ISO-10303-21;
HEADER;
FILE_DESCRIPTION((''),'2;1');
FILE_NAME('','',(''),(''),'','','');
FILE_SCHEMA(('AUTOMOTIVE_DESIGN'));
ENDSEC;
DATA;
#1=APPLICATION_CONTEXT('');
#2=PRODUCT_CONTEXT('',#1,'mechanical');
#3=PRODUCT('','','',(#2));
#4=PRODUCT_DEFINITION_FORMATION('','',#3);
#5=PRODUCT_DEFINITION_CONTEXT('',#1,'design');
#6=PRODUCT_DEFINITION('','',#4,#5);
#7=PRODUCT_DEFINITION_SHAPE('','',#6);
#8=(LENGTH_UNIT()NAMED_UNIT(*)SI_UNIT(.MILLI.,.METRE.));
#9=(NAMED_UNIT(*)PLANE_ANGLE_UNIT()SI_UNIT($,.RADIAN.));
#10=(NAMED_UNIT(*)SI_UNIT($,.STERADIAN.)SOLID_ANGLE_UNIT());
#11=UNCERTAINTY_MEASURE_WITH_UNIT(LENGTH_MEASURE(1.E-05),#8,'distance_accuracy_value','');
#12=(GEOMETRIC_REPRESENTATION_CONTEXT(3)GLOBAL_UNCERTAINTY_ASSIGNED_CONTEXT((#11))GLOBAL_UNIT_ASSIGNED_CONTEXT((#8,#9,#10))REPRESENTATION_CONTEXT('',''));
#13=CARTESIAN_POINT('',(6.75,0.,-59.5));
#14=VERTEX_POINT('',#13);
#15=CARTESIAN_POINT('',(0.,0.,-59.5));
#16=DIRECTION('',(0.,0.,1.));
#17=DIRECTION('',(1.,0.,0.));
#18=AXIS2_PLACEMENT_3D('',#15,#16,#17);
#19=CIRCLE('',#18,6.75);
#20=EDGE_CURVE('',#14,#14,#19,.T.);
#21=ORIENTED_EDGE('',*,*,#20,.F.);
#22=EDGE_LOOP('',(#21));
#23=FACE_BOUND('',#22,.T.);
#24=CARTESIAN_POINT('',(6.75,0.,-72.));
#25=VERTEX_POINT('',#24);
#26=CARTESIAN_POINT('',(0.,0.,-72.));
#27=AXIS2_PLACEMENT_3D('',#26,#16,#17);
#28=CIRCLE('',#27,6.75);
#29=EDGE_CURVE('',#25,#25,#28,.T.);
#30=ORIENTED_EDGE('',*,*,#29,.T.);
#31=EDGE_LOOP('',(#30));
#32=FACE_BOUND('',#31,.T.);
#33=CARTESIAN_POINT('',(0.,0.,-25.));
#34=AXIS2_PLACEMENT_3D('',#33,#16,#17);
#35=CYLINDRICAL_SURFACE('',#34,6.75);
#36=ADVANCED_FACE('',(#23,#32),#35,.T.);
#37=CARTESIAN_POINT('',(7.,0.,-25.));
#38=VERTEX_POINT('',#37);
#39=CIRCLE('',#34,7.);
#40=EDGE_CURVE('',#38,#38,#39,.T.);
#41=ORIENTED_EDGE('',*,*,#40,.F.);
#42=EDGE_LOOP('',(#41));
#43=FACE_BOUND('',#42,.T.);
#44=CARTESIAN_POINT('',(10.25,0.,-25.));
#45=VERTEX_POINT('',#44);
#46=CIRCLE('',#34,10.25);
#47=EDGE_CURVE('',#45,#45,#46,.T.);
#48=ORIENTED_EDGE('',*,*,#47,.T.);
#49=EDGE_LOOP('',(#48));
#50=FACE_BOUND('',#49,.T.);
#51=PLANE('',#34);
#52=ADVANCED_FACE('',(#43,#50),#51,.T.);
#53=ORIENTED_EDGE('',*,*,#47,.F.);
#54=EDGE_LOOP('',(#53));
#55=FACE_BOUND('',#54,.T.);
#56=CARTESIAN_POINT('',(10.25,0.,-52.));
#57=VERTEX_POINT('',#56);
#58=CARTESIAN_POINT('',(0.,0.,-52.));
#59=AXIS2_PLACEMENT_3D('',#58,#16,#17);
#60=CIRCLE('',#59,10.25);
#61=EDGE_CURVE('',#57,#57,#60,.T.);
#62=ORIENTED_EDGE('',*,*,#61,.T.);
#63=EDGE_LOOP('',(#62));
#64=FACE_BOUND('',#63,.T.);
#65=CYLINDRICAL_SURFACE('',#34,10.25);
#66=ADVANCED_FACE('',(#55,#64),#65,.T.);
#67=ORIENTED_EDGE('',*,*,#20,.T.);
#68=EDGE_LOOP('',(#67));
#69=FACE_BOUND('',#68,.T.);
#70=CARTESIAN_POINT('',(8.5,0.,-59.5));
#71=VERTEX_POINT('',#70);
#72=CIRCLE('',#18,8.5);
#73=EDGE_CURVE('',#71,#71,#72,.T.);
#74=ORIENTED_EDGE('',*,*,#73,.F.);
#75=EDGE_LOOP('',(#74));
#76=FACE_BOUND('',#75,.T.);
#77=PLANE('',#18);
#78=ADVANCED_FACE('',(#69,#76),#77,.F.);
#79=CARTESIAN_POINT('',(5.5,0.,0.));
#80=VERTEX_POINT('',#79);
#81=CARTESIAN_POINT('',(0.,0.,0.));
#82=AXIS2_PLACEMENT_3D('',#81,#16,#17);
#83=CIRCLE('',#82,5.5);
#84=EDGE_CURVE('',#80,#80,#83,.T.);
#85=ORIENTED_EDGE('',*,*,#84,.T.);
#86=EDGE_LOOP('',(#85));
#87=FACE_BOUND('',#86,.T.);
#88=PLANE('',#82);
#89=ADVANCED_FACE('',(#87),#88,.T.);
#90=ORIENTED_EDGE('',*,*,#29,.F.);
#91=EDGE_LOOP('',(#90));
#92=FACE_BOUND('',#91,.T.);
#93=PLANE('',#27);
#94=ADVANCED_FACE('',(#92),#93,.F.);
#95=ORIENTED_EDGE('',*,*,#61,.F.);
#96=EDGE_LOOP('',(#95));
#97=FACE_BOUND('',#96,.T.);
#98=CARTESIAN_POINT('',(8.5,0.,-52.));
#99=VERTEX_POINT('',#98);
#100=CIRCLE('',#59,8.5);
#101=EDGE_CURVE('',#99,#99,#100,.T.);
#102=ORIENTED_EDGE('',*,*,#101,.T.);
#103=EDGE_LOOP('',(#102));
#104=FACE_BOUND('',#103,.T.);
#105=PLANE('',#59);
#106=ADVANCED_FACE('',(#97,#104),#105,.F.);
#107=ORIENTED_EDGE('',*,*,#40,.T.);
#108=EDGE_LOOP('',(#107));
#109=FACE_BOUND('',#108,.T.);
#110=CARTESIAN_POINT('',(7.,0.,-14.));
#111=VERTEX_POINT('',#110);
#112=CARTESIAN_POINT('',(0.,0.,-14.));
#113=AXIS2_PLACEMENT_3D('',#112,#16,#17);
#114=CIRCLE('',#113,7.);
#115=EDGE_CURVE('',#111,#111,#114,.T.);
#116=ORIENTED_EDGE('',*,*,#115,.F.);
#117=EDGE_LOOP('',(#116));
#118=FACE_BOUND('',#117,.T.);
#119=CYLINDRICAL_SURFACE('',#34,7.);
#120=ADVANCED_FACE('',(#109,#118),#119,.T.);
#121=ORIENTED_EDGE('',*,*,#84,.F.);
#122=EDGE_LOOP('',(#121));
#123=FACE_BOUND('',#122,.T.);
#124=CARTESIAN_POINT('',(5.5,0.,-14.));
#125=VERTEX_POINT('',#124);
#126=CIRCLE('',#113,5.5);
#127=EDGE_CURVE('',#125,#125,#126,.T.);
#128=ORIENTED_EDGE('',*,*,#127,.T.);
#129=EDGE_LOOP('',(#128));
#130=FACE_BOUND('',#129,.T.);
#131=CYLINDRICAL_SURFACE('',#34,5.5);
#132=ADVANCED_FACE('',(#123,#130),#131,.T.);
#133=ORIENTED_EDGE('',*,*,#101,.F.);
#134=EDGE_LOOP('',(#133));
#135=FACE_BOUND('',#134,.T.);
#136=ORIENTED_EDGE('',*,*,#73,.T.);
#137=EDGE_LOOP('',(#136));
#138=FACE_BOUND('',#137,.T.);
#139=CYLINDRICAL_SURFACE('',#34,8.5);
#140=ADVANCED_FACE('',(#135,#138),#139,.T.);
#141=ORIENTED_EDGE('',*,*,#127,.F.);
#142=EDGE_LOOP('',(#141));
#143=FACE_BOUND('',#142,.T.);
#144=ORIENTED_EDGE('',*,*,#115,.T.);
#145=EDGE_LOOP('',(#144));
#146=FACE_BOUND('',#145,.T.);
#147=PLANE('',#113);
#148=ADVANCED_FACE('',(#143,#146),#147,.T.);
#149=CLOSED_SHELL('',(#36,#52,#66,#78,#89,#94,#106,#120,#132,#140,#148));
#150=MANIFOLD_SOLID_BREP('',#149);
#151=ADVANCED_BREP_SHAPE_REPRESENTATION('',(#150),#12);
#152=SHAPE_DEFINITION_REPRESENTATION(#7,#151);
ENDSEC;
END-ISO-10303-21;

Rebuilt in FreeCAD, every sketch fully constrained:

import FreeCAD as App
import Part
import Sketcher
from FreeCAD import Vector
Q = App.Units.Quantity

doc = App.newDocument("Part")
body = doc.addObject("PartDesign::Body", "Body")

# Sketch on YZ plane
sketch1 = body.newObject("Sketcher::SketchObject", "Sketch")
sketch1.AttachmentSupport = (doc.getObject("YZ_Plane"), [""])
sketch1.MapMode = "FlatFace"
sketch1.addGeometry(Part.LineSegment(Vector(5.5, 0, 0), Vector(0, 0, 0)), False)
sketch1.addGeometry(Part.LineSegment(Vector(0, 0, 0), Vector(0, -72, 0)), False)
sketch1.addGeometry(Part.LineSegment(Vector(0, -72, 0), Vector(6.8, -72, 0)), False)
sketch1.addGeometry(Part.LineSegment(Vector(6.8, -72, 0), Vector(6.8, -59.5, 0)), False)
sketch1.addGeometry(Part.LineSegment(Vector(6.8, -59.5, 0), Vector(8.5, -59.5, 0)), False)
sketch1.addGeometry(Part.LineSegment(Vector(8.5, -59.5, 0), Vector(8.5, -52, 0)), False)
sketch1.addGeometry(Part.LineSegment(Vector(8.5, -52, 0), Vector(10.2, -52, 0)), False)
sketch1.addGeometry(Part.LineSegment(Vector(10.2, -52, 0), Vector(10.2, -25, 0)), False)
sketch1.addGeometry(Part.LineSegment(Vector(10.2, -25, 0), Vector(7, -25, 0)), False)
sketch1.addGeometry(Part.LineSegment(Vector(7, -25, 0), Vector(7, -14, 0)), False)
sketch1.addGeometry(Part.LineSegment(Vector(7, -14, 0), Vector(5.5, -14, 0)), False)
sketch1.addGeometry(Part.LineSegment(Vector(5.5, -14, 0), Vector(5.5, 0, 0)), False)
sketch1.addConstraint(Sketcher.Constraint("Coincident", 0, 2, 1, 1))
sketch1.addConstraint(Sketcher.Constraint("Coincident", 1, 2, 2, 1))
sketch1.addConstraint(Sketcher.Constraint("Coincident", 2, 2, 3, 1))
sketch1.addConstraint(Sketcher.Constraint("Coincident", 3, 2, 4, 1))
sketch1.addConstraint(Sketcher.Constraint("Coincident", 4, 2, 5, 1))
sketch1.addConstraint(Sketcher.Constraint("Coincident", 5, 2, 6, 1))
sketch1.addConstraint(Sketcher.Constraint("Coincident", 6, 2, 7, 1))
sketch1.addConstraint(Sketcher.Constraint("Coincident", 7, 2, 8, 1))
sketch1.addConstraint(Sketcher.Constraint("Coincident", 8, 2, 9, 1))
sketch1.addConstraint(Sketcher.Constraint("Coincident", 9, 2, 10, 1))
sketch1.addConstraint(Sketcher.Constraint("Coincident", 10, 2, 11, 1))
sketch1.addConstraint(Sketcher.Constraint("Coincident", 11, 2, 0, 1))
sketch1.addConstraint(Sketcher.Constraint("Horizontal", 0))
sketch1.addConstraint(Sketcher.Constraint("Vertical", 1))
sketch1.addConstraint(Sketcher.Constraint("Horizontal", 2))
sketch1.addConstraint(Sketcher.Constraint("Vertical", 3))
sketch1.addConstraint(Sketcher.Constraint("Horizontal", 4))
sketch1.addConstraint(Sketcher.Constraint("Vertical", 5))
sketch1.addConstraint(Sketcher.Constraint("Horizontal", 6))
sketch1.addConstraint(Sketcher.Constraint("Vertical", 7))
sketch1.addConstraint(Sketcher.Constraint("Horizontal", 8))
sketch1.addConstraint(Sketcher.Constraint("Vertical", 9))
sketch1.addConstraint(Sketcher.Constraint("Horizontal", 10))
sketch1.addConstraint(Sketcher.Constraint("Vertical", 11))
sketch1.addConstraint(Sketcher.Constraint("Coincident", 0, 2, -1, 1))
sketch1.addConstraint(Sketcher.Constraint("Equal", 4, 6))
sketch1.addConstraint(Sketcher.Constraint("DistanceY", 1, 2, 1, 1, Q("72 mm")))
sketch1.addConstraint(Sketcher.Constraint("DistanceY", 7, 1, 7, 2, Q("27 mm")))
sketch1.addConstraint(Sketcher.Constraint("DistanceY", 9, 1, 9, 2, Q("11 mm")))
sketch1.addConstraint(Sketcher.Constraint("DistanceY", 11, 1, 11, 2, Q("14 mm")))
sketch1.addConstraint(Sketcher.Constraint("DistanceX", 0, 2, 0, 1, Q("5.5 mm")))
sketch1.addConstraint(Sketcher.Constraint("DistanceX", 10, 2, 10, 1, Q("1.5 mm")))
sketch1.addConstraint(Sketcher.Constraint("DistanceY", 3, 1, 3, 2, Q("12.5 mm")))
sketch1.addConstraint(Sketcher.Constraint("DistanceX", 10, 2, 5, 2, Q("3 mm")))
sketch1.addConstraint(Sketcher.Constraint("DistanceX", 2, 1, 2, 2, Q("6.75 mm")))
revolution = body.newObject("PartDesign::Revolution", "Revolution")
revolution.Profile = sketch1
revolution.ReferenceAxis = (sketch1, ["V_Axis"])
revolution.Angle = 360

doc.recompute()
